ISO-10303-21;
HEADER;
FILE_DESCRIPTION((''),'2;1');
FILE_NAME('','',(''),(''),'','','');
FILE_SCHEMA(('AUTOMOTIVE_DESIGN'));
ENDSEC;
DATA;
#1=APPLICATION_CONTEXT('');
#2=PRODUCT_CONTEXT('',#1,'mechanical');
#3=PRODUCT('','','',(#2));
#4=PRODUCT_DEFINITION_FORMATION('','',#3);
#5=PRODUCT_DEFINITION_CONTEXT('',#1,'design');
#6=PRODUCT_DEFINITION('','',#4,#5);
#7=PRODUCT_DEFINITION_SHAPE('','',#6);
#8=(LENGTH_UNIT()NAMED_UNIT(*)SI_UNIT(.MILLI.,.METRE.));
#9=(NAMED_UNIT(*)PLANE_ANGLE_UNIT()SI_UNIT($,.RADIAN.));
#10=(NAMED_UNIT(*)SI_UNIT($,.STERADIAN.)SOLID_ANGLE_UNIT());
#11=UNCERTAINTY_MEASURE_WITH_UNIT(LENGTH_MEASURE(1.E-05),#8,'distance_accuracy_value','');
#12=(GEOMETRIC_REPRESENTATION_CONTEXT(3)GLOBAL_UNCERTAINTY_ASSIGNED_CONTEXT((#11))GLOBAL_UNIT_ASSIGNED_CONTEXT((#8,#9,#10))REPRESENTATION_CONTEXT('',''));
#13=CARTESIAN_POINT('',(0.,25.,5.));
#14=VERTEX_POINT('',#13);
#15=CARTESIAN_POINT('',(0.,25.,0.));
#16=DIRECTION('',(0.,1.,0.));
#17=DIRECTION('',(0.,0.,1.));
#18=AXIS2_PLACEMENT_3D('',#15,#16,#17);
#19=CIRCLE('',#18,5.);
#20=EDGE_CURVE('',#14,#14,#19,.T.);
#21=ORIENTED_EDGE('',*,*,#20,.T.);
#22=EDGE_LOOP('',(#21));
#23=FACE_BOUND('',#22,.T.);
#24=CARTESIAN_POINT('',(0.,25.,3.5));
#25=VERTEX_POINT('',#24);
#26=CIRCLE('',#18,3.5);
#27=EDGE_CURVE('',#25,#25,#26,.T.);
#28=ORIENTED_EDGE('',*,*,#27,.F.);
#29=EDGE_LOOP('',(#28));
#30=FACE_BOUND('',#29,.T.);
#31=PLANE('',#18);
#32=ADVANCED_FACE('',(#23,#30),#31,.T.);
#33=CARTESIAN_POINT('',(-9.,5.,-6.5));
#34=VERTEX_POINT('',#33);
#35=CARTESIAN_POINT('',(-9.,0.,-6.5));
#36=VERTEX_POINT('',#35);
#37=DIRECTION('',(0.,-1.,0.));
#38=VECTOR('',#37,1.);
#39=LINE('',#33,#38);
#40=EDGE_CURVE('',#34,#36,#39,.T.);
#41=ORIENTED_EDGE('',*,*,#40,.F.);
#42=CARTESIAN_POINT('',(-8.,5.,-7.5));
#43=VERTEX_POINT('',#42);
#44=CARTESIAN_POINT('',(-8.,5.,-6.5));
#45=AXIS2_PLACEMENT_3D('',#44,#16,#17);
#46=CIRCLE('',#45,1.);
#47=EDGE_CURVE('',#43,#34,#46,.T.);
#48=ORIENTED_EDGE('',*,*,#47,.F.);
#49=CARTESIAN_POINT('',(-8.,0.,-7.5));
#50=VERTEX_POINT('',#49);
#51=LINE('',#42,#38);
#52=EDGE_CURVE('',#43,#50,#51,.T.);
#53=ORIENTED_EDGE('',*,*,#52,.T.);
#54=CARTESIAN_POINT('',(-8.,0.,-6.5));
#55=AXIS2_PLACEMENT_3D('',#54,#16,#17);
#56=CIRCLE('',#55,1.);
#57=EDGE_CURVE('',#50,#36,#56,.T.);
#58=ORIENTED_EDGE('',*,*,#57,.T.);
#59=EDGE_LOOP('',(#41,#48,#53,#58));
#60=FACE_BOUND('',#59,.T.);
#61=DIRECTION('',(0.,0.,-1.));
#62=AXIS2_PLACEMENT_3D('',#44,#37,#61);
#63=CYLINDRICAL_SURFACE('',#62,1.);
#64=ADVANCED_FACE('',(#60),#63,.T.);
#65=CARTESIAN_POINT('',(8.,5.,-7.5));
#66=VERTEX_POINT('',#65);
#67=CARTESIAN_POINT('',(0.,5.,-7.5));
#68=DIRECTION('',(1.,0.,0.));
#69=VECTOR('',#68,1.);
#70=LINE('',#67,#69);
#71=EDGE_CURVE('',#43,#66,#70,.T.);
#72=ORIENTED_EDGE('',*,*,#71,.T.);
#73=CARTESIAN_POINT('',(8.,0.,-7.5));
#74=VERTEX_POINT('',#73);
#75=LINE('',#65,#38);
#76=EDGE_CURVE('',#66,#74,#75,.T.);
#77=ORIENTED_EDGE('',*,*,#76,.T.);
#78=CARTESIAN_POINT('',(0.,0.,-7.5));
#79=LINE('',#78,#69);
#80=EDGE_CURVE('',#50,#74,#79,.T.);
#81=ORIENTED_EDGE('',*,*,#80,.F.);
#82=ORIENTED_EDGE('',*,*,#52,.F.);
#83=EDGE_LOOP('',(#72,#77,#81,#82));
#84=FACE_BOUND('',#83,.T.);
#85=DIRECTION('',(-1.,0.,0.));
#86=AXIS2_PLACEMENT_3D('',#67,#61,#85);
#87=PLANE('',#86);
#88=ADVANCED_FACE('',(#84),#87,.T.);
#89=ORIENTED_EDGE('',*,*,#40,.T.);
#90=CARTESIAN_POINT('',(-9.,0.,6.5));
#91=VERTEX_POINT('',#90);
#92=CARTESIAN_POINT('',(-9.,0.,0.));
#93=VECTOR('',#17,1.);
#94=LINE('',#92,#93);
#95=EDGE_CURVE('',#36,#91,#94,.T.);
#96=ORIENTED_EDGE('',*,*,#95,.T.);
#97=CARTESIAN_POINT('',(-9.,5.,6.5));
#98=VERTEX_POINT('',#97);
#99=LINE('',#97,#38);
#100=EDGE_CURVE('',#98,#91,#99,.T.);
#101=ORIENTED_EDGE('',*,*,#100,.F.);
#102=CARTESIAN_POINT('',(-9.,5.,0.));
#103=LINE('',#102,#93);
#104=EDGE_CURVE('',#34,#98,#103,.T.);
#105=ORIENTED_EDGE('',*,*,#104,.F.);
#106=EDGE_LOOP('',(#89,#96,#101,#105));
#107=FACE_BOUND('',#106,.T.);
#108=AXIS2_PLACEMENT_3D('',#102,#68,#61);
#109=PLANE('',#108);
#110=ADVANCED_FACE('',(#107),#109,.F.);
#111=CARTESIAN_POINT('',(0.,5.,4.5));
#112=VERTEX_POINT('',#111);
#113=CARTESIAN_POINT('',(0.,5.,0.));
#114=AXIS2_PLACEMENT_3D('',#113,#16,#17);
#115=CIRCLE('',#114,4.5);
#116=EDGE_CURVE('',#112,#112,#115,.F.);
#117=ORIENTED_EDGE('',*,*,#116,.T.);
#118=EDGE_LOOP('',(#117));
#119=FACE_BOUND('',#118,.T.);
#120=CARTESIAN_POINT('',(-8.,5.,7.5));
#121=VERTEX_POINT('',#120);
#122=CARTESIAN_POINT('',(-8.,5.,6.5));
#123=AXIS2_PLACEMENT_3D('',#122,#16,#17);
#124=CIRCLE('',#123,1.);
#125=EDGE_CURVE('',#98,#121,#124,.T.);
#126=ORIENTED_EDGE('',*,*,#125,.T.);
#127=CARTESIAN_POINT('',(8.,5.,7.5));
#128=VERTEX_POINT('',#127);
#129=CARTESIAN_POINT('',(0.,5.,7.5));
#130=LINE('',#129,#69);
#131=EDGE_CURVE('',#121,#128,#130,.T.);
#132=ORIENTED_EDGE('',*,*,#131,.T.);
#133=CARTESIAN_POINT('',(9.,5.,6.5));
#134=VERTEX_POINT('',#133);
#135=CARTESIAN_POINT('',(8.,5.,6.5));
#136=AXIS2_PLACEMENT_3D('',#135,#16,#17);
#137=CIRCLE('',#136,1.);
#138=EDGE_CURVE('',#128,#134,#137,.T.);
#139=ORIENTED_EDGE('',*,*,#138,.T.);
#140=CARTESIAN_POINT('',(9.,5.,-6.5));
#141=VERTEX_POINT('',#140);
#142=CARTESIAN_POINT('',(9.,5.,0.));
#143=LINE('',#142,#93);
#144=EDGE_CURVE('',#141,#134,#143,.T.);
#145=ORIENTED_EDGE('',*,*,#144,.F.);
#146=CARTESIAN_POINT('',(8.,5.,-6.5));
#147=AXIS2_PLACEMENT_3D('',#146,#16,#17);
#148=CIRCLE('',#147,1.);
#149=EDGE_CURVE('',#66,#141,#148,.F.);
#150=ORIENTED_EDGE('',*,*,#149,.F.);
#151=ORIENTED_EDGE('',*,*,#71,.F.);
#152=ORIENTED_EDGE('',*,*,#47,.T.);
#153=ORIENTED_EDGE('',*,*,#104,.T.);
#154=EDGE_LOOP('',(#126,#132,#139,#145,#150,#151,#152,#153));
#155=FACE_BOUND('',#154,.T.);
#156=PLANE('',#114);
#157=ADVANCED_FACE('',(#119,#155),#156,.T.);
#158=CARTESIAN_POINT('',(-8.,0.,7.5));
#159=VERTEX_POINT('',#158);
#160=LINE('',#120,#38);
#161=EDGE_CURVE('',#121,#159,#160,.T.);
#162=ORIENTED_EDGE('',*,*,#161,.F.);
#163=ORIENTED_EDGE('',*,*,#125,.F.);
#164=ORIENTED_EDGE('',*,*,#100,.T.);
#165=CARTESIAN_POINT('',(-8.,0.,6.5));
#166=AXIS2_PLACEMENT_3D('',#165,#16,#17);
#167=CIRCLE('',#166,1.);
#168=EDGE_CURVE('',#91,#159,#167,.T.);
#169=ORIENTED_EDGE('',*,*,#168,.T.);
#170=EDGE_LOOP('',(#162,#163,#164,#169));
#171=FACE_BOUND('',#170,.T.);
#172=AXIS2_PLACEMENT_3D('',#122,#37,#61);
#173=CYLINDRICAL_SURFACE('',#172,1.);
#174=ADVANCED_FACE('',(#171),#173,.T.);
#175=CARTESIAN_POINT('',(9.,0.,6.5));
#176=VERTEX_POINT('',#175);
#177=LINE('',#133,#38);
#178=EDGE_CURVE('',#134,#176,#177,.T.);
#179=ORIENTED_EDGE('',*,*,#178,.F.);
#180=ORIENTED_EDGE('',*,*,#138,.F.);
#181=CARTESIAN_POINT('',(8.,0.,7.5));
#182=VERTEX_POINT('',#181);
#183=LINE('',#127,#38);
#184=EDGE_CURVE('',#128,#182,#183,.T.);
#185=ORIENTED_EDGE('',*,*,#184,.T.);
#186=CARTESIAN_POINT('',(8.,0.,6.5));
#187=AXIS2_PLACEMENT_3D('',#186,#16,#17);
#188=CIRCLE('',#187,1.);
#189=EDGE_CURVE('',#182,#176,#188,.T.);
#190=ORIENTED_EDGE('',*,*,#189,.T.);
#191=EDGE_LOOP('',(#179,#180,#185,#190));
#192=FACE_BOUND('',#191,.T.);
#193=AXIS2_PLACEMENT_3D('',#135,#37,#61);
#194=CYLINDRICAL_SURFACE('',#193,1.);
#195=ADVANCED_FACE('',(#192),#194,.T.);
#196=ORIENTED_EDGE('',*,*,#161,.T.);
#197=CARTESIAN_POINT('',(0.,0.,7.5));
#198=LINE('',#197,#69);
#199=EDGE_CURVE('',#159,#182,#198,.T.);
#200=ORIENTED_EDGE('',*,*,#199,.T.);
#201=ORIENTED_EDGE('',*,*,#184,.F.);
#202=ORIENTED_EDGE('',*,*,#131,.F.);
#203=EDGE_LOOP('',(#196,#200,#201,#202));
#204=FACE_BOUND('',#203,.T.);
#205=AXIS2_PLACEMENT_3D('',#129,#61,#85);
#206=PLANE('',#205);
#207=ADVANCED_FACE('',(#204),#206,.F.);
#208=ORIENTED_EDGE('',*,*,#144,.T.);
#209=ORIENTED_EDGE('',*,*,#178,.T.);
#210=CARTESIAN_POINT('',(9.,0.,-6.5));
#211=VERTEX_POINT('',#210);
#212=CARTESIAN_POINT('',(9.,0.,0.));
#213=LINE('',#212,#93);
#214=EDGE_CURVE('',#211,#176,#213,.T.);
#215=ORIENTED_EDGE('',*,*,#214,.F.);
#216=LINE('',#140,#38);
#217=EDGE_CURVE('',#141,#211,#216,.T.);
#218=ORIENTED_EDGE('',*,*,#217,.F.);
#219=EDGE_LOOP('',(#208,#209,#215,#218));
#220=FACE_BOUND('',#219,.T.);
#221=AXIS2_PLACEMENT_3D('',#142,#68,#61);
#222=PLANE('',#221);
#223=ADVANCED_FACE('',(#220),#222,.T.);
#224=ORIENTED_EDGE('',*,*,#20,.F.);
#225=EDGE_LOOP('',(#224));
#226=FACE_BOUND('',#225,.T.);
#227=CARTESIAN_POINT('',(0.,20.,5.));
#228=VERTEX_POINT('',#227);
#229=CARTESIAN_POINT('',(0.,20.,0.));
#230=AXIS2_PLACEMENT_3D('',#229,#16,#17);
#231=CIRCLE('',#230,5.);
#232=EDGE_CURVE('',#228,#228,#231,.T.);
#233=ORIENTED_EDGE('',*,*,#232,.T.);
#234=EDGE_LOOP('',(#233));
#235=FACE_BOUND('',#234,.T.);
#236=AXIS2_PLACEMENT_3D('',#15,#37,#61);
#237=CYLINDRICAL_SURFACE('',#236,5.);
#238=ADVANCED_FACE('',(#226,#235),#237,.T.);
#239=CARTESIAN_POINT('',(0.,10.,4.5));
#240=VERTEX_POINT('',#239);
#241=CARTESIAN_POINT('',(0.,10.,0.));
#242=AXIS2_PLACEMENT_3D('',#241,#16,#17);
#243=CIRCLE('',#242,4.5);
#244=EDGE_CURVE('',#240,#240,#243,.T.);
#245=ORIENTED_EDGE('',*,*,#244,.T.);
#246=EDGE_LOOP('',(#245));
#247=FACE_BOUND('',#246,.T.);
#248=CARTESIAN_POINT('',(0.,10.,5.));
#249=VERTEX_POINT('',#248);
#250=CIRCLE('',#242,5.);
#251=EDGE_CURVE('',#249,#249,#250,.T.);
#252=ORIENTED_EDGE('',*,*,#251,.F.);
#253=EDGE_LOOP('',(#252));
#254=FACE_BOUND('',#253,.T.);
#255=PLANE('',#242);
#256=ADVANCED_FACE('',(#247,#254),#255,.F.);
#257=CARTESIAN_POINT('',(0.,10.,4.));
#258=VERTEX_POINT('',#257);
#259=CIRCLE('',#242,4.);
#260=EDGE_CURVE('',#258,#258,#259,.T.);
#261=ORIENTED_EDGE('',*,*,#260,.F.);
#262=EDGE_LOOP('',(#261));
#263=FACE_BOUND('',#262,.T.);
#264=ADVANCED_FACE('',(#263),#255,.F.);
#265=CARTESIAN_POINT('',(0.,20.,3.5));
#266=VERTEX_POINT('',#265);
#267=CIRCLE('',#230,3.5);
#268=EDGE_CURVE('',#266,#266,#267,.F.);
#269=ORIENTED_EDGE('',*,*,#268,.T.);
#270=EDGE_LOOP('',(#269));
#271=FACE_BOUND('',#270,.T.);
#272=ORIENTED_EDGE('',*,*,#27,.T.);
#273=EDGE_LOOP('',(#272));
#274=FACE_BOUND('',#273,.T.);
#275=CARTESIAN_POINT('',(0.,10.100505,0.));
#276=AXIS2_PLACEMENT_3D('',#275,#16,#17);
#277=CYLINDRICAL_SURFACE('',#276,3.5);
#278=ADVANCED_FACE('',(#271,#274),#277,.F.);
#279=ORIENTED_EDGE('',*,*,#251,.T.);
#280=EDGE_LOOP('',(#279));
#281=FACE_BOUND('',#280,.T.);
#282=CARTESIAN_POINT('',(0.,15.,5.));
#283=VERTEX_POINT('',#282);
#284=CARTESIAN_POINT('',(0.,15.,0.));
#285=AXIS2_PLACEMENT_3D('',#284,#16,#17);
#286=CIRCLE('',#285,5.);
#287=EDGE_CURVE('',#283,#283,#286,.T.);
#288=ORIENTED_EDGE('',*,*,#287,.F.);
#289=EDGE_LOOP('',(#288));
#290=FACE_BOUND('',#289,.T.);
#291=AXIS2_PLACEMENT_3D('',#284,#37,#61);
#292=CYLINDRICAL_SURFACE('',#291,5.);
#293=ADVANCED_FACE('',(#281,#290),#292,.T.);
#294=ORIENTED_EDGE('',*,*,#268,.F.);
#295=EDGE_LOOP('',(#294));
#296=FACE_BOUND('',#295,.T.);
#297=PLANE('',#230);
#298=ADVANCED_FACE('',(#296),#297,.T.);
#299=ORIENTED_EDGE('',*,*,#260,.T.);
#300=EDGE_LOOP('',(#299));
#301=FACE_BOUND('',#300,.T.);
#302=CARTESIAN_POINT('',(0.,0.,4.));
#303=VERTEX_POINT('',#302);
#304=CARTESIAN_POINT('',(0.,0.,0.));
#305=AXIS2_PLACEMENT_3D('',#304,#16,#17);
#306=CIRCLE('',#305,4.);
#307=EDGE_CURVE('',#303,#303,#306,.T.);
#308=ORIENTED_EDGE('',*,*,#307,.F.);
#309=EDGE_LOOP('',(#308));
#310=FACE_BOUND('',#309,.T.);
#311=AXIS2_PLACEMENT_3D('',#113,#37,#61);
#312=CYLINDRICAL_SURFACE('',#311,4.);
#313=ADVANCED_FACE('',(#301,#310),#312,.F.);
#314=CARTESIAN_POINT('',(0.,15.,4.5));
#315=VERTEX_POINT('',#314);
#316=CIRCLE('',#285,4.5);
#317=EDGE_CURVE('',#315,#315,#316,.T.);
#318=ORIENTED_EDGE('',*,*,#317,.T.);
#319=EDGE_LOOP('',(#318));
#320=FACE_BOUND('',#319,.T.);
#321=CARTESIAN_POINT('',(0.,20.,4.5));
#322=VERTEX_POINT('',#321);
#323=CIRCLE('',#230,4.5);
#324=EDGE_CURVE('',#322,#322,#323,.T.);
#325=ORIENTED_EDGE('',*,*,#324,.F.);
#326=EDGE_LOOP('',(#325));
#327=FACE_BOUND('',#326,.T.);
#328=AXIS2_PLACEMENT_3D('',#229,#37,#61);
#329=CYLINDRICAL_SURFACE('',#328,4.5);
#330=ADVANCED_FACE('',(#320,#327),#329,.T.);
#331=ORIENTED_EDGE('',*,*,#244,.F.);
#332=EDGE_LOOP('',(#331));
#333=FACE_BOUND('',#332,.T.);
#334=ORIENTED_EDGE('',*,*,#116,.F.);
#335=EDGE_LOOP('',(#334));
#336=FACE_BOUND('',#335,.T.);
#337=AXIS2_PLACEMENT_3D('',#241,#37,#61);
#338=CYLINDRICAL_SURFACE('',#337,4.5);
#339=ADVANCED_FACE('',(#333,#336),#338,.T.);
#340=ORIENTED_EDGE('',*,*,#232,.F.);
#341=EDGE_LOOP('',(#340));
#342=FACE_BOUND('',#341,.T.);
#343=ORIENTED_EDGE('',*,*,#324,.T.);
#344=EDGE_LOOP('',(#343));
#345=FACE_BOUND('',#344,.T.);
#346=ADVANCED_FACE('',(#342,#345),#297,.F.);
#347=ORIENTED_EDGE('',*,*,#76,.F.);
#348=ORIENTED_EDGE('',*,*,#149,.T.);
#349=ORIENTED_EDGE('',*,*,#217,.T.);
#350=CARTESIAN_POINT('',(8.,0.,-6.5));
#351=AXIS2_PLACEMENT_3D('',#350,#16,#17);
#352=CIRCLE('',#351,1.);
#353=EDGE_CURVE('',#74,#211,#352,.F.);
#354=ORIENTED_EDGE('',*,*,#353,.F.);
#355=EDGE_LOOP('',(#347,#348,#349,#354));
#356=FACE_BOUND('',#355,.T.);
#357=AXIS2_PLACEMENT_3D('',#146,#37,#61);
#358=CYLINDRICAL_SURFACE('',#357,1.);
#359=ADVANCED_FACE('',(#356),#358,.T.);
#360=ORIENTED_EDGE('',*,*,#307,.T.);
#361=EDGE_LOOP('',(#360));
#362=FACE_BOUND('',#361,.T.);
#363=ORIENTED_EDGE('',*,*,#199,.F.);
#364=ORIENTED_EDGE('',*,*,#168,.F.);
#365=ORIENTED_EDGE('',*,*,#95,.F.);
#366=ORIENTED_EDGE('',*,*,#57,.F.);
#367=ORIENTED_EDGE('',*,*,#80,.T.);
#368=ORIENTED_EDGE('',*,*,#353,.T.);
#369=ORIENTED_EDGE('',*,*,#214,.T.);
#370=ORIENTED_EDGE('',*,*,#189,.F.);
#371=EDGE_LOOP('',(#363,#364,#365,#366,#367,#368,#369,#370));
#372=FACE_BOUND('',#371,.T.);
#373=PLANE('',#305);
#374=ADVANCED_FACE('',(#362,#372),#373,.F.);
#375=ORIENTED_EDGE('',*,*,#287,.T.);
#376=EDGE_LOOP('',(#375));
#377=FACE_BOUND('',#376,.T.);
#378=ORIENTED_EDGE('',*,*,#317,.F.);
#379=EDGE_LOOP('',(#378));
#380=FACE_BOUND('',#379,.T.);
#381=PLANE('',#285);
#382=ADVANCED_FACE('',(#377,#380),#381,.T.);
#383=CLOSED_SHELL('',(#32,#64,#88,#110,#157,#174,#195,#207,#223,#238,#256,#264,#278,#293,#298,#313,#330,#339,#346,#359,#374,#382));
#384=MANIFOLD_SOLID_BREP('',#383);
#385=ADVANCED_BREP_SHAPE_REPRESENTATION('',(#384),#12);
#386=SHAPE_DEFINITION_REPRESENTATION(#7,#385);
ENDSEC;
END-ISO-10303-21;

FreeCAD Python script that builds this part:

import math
import FreeCAD as App
import Part
import Sketcher

V = App.Vector
Q = App.Units.Quantity

doc = App.newDocument("Part")
body = doc.addObject("PartDesign::Body", "Body")

sketch1 = doc.addObject("Sketcher::SketchObject", "Sketch")
body.addObject(sketch1)
sketch1.AttachmentSupport = (doc.XZ_Plane, [""])
sketch1.MapMode = "FlatFace"
sketch1.addGeometry(Part.LineSegment(V(-8, 7.5, 0), V(8, 7.5, 0)), False)
sketch1.addGeometry(Part.ArcOfCircle(Part.Circle(V(8, 6.5, 0), V(0, 0, 1), 1), math.radians(0), math.radians(90)), False)
sketch1.addGeometry(Part.LineSegment(V(9, 6.5, 0), V(9, -6.5, 0)), False)
sketch1.addGeometry(Part.ArcOfCircle(Part.Circle(V(8, -6.5, 0), V(0, 0, 1), 1), math.radians(-90), math.radians(0)), False)
sketch1.addGeometry(Part.LineSegment(V(8, -7.5, 0), V(-8, -7.5, 0)), False)
sketch1.addGeometry(Part.ArcOfCircle(Part.Circle(V(-8, -6.5, 0), V(0, 0, 1), 1), math.radians(-180), math.radians(-90)), False)
sketch1.addGeometry(Part.LineSegment(V(-9, -6.5, 0), V(-9, 6.5, 0)), False)
sketch1.addGeometry(Part.ArcOfCircle(Part.Circle(V(-8, 6.5, 0), V(0, 0, 1), 1), math.radians(90), math.radians(180)), False)
sketch1.addConstraint(Sketcher.Constraint("Tangent", 0, 2, 1, 2))
sketch1.addConstraint(Sketcher.Constraint("Tangent", 1, 1, 2, 1))
sketch1.addConstraint(Sketcher.Constraint("Tangent", 2, 2, 3, 2))
sketch1.addConstraint(Sketcher.Constraint("Tangent", 3, 1, 4, 1))
sketch1.addConstraint(Sketcher.Constraint("Tangent", 4, 2, 5, 2))
sketch1.addConstraint(Sketcher.Constraint("Tangent", 5, 1, 6, 1))
sketch1.addConstraint(Sketcher.Constraint("Tangent", 6, 2, 7, 2))
sketch1.addConstraint(Sketcher.Constraint("Tangent", 7, 1, 0, 1))
sketch1.addConstraint(Sketcher.Constraint("Horizontal", 0))
sketch1.addConstraint(Sketcher.Constraint("Vertical", 2))
sketch1.addConstraint(Sketcher.Constraint("Horizontal", 4))
sketch1.addConstraint(Sketcher.Constraint("Vertical", 6))
sketch1.addConstraint(Sketcher.Constraint("Equal", 1, 3))
sketch1.addConstraint(Sketcher.Constraint("Equal", 3, 5))
sketch1.addConstraint(Sketcher.Constraint("Equal", 5, 7))
sketch1.addConstraint(Sketcher.Constraint("Symmetric", 1, 3, 5, 3, -1, 1))
sketch1.addConstraint(Sketcher.Constraint("Radius", 1, Q("1 mm")))
sketch1.addConstraint(Sketcher.Constraint("DistanceX", 0, 1, 0, 2, Q("16 mm")))
sketch1.addConstraint(Sketcher.Constraint("DistanceY", 2, 2, 2, 1, Q("13 mm")))
pad1 = doc.addObject("PartDesign::Pad", "Pad")
body.addObject(pad1)
pad1.Profile = sketch1
pad1.Length = 5
pad1.Reversed = True

sketch2 = doc.addObject("Sketcher::SketchObject", "Sketch001")
body.addObject(sketch2)
sketch2.AttachmentSupport = (doc.XZ_Plane, [""])
sketch2.MapMode = "FlatFace"
sketch2.addGeometry(Part.Circle(V(0, 0, 0), V(0, 0, 1), 4), False)
sketch2.addConstraint(Sketcher.Constraint("Coincident", 0, 3, -1, 1))
sketch2.addConstraint(Sketcher.Constraint("Diameter", 0, Q("8 mm")))
pocket1 = doc.addObject("PartDesign::Pocket", "Pocket")
body.addObject(pocket1)
pocket1.Profile = sketch2
pocket1.Type = "ThroughAll"

sketch3 = doc.addObject("Sketcher::SketchObject", "Sketch002")
body.addObject(sketch3)
sketch3.AttachmentSupport = (doc.XZ_Plane, [""])
sketch3.MapMode = "FlatFace"
sketch3.addGeometry(Part.Circle(V(0, 0, 0), V(0, 0, 1), 4.5), False)
sketch3.addGeometry(Part.Circle(V(0, 0, 0), V(0, 0, 1), 4), False)
sketch3.addConstraint(Sketcher.Constraint("Coincident", 0, 3, -1, 1))
sketch3.addConstraint(Sketcher.Constraint("Coincident", 1, 3, -1, 1))
sketch3.addConstraint(Sketcher.Constraint("Diameter", 0, Q("9 mm")))
sketch3.addConstraint(Sketcher.Constraint("Diameter", 1, Q("8 mm")))
pad2 = doc.addObject("PartDesign::Pad", "Pad001")
body.addObject(pad2)
pad2.Profile = sketch3
pad2.Length = 10
pad2.Reversed = True

sketch4 = doc.addObject("Sketcher::SketchObject", "Sketch003")
body.addObject(sketch4)
sketch4.AttachmentSupport = (doc.XZ_Plane, [""])
sketch4.MapMode = "FlatFace"
sketch4.AttachmentOffset = App.Placement(V(0, 0, -10), App.Rotation())
sketch4.addGeometry(Part.Circle(V(0, 0, 0), V(0, 0, 1), 5), False)
sketch4.addConstraint(Sketcher.Constraint("Coincident", 0, 3, -1, 1))
sketch4.addConstraint(Sketcher.Constraint("Diameter", 0, Q("10 mm")))
pad3 = doc.addObject("PartDesign::Pad", "Pad002")
body.addObject(pad3)
pad3.Profile = sketch4
pad3.Length = 5
pad3.Reversed = True

sketch5 = doc.addObject("Sketcher::SketchObject", "Sketch004")
body.addObject(sketch5)
sketch5.AttachmentSupport = (doc.XZ_Plane, [""])
sketch5.MapMode = "FlatFace"
sketch5.AttachmentOffset = App.Placement(V(0, 0, -15), App.Rotation())
sketch5.addGeometry(Part.Circle(V(0, 0, 0), V(0, 0, 1), 4.5), False)
sketch5.addConstraint(Sketcher.Constraint("Coincident", 0, 3, -1, 1))
sketch5.addConstraint(Sketcher.Constraint("Diameter", 0, Q("9 mm")))
pad4 = doc.addObject("PartDesign::Pad", "Pad003")
body.addObject(pad4)
pad4.Profile = sketch5
pad4.Length = 5
pad4.Reversed = True

sketch6 = doc.addObject("Sketcher::SketchObject", "Sketch005")
body.addObject(sketch6)
sketch6.AttachmentSupport = (doc.XZ_Plane, [""])
sketch6.MapMode = "FlatFace"
sketch6.AttachmentOffset = App.Placement(V(0, 0, -20), App.Rotation())
sketch6.addGeometry(Part.Circle(V(0, 0, 0), V(0, 0, 1), 5), False)
sketch6.addConstraint(Sketcher.Constraint("Coincident", 0, 3, -1, 1))
sketch6.addConstraint(Sketcher.Constraint("Diameter", 0, Q("10 mm")))
pad5 = doc.addObject("PartDesign::Pad", "Pad004")
body.addObject(pad5)
pad5.Profile = sketch6
pad5.Length = 5
pad5.Reversed = True

sketch7 = doc.addObject("Sketcher::SketchObject", "Sketch006")
body.addObject(sketch7)
sketch7.AttachmentSupport = (doc.XZ_Plane, [""])
sketch7.MapMode = "FlatFace"
sketch7.AttachmentOffset = App.Placement(V(0, 0, -25), App.Rotation())
sketch7.addGeometry(Part.Circle(V(0, 0, 0), V(0, 0, 1), 3.5), False)
sketch7.addConstraint(Sketcher.Constraint("Coincident", 0, 3, -1, 1))
sketch7.addConstraint(Sketcher.Constraint("Diameter", 0, Q("7 mm")))
pocket2 = doc.addObject("PartDesign::Pocket", "Pocket001")
body.addObject(pocket2)
pocket2.Profile = sketch7
pocket2.Length = 5
pocket2.Reversed = True

doc.recompute()
